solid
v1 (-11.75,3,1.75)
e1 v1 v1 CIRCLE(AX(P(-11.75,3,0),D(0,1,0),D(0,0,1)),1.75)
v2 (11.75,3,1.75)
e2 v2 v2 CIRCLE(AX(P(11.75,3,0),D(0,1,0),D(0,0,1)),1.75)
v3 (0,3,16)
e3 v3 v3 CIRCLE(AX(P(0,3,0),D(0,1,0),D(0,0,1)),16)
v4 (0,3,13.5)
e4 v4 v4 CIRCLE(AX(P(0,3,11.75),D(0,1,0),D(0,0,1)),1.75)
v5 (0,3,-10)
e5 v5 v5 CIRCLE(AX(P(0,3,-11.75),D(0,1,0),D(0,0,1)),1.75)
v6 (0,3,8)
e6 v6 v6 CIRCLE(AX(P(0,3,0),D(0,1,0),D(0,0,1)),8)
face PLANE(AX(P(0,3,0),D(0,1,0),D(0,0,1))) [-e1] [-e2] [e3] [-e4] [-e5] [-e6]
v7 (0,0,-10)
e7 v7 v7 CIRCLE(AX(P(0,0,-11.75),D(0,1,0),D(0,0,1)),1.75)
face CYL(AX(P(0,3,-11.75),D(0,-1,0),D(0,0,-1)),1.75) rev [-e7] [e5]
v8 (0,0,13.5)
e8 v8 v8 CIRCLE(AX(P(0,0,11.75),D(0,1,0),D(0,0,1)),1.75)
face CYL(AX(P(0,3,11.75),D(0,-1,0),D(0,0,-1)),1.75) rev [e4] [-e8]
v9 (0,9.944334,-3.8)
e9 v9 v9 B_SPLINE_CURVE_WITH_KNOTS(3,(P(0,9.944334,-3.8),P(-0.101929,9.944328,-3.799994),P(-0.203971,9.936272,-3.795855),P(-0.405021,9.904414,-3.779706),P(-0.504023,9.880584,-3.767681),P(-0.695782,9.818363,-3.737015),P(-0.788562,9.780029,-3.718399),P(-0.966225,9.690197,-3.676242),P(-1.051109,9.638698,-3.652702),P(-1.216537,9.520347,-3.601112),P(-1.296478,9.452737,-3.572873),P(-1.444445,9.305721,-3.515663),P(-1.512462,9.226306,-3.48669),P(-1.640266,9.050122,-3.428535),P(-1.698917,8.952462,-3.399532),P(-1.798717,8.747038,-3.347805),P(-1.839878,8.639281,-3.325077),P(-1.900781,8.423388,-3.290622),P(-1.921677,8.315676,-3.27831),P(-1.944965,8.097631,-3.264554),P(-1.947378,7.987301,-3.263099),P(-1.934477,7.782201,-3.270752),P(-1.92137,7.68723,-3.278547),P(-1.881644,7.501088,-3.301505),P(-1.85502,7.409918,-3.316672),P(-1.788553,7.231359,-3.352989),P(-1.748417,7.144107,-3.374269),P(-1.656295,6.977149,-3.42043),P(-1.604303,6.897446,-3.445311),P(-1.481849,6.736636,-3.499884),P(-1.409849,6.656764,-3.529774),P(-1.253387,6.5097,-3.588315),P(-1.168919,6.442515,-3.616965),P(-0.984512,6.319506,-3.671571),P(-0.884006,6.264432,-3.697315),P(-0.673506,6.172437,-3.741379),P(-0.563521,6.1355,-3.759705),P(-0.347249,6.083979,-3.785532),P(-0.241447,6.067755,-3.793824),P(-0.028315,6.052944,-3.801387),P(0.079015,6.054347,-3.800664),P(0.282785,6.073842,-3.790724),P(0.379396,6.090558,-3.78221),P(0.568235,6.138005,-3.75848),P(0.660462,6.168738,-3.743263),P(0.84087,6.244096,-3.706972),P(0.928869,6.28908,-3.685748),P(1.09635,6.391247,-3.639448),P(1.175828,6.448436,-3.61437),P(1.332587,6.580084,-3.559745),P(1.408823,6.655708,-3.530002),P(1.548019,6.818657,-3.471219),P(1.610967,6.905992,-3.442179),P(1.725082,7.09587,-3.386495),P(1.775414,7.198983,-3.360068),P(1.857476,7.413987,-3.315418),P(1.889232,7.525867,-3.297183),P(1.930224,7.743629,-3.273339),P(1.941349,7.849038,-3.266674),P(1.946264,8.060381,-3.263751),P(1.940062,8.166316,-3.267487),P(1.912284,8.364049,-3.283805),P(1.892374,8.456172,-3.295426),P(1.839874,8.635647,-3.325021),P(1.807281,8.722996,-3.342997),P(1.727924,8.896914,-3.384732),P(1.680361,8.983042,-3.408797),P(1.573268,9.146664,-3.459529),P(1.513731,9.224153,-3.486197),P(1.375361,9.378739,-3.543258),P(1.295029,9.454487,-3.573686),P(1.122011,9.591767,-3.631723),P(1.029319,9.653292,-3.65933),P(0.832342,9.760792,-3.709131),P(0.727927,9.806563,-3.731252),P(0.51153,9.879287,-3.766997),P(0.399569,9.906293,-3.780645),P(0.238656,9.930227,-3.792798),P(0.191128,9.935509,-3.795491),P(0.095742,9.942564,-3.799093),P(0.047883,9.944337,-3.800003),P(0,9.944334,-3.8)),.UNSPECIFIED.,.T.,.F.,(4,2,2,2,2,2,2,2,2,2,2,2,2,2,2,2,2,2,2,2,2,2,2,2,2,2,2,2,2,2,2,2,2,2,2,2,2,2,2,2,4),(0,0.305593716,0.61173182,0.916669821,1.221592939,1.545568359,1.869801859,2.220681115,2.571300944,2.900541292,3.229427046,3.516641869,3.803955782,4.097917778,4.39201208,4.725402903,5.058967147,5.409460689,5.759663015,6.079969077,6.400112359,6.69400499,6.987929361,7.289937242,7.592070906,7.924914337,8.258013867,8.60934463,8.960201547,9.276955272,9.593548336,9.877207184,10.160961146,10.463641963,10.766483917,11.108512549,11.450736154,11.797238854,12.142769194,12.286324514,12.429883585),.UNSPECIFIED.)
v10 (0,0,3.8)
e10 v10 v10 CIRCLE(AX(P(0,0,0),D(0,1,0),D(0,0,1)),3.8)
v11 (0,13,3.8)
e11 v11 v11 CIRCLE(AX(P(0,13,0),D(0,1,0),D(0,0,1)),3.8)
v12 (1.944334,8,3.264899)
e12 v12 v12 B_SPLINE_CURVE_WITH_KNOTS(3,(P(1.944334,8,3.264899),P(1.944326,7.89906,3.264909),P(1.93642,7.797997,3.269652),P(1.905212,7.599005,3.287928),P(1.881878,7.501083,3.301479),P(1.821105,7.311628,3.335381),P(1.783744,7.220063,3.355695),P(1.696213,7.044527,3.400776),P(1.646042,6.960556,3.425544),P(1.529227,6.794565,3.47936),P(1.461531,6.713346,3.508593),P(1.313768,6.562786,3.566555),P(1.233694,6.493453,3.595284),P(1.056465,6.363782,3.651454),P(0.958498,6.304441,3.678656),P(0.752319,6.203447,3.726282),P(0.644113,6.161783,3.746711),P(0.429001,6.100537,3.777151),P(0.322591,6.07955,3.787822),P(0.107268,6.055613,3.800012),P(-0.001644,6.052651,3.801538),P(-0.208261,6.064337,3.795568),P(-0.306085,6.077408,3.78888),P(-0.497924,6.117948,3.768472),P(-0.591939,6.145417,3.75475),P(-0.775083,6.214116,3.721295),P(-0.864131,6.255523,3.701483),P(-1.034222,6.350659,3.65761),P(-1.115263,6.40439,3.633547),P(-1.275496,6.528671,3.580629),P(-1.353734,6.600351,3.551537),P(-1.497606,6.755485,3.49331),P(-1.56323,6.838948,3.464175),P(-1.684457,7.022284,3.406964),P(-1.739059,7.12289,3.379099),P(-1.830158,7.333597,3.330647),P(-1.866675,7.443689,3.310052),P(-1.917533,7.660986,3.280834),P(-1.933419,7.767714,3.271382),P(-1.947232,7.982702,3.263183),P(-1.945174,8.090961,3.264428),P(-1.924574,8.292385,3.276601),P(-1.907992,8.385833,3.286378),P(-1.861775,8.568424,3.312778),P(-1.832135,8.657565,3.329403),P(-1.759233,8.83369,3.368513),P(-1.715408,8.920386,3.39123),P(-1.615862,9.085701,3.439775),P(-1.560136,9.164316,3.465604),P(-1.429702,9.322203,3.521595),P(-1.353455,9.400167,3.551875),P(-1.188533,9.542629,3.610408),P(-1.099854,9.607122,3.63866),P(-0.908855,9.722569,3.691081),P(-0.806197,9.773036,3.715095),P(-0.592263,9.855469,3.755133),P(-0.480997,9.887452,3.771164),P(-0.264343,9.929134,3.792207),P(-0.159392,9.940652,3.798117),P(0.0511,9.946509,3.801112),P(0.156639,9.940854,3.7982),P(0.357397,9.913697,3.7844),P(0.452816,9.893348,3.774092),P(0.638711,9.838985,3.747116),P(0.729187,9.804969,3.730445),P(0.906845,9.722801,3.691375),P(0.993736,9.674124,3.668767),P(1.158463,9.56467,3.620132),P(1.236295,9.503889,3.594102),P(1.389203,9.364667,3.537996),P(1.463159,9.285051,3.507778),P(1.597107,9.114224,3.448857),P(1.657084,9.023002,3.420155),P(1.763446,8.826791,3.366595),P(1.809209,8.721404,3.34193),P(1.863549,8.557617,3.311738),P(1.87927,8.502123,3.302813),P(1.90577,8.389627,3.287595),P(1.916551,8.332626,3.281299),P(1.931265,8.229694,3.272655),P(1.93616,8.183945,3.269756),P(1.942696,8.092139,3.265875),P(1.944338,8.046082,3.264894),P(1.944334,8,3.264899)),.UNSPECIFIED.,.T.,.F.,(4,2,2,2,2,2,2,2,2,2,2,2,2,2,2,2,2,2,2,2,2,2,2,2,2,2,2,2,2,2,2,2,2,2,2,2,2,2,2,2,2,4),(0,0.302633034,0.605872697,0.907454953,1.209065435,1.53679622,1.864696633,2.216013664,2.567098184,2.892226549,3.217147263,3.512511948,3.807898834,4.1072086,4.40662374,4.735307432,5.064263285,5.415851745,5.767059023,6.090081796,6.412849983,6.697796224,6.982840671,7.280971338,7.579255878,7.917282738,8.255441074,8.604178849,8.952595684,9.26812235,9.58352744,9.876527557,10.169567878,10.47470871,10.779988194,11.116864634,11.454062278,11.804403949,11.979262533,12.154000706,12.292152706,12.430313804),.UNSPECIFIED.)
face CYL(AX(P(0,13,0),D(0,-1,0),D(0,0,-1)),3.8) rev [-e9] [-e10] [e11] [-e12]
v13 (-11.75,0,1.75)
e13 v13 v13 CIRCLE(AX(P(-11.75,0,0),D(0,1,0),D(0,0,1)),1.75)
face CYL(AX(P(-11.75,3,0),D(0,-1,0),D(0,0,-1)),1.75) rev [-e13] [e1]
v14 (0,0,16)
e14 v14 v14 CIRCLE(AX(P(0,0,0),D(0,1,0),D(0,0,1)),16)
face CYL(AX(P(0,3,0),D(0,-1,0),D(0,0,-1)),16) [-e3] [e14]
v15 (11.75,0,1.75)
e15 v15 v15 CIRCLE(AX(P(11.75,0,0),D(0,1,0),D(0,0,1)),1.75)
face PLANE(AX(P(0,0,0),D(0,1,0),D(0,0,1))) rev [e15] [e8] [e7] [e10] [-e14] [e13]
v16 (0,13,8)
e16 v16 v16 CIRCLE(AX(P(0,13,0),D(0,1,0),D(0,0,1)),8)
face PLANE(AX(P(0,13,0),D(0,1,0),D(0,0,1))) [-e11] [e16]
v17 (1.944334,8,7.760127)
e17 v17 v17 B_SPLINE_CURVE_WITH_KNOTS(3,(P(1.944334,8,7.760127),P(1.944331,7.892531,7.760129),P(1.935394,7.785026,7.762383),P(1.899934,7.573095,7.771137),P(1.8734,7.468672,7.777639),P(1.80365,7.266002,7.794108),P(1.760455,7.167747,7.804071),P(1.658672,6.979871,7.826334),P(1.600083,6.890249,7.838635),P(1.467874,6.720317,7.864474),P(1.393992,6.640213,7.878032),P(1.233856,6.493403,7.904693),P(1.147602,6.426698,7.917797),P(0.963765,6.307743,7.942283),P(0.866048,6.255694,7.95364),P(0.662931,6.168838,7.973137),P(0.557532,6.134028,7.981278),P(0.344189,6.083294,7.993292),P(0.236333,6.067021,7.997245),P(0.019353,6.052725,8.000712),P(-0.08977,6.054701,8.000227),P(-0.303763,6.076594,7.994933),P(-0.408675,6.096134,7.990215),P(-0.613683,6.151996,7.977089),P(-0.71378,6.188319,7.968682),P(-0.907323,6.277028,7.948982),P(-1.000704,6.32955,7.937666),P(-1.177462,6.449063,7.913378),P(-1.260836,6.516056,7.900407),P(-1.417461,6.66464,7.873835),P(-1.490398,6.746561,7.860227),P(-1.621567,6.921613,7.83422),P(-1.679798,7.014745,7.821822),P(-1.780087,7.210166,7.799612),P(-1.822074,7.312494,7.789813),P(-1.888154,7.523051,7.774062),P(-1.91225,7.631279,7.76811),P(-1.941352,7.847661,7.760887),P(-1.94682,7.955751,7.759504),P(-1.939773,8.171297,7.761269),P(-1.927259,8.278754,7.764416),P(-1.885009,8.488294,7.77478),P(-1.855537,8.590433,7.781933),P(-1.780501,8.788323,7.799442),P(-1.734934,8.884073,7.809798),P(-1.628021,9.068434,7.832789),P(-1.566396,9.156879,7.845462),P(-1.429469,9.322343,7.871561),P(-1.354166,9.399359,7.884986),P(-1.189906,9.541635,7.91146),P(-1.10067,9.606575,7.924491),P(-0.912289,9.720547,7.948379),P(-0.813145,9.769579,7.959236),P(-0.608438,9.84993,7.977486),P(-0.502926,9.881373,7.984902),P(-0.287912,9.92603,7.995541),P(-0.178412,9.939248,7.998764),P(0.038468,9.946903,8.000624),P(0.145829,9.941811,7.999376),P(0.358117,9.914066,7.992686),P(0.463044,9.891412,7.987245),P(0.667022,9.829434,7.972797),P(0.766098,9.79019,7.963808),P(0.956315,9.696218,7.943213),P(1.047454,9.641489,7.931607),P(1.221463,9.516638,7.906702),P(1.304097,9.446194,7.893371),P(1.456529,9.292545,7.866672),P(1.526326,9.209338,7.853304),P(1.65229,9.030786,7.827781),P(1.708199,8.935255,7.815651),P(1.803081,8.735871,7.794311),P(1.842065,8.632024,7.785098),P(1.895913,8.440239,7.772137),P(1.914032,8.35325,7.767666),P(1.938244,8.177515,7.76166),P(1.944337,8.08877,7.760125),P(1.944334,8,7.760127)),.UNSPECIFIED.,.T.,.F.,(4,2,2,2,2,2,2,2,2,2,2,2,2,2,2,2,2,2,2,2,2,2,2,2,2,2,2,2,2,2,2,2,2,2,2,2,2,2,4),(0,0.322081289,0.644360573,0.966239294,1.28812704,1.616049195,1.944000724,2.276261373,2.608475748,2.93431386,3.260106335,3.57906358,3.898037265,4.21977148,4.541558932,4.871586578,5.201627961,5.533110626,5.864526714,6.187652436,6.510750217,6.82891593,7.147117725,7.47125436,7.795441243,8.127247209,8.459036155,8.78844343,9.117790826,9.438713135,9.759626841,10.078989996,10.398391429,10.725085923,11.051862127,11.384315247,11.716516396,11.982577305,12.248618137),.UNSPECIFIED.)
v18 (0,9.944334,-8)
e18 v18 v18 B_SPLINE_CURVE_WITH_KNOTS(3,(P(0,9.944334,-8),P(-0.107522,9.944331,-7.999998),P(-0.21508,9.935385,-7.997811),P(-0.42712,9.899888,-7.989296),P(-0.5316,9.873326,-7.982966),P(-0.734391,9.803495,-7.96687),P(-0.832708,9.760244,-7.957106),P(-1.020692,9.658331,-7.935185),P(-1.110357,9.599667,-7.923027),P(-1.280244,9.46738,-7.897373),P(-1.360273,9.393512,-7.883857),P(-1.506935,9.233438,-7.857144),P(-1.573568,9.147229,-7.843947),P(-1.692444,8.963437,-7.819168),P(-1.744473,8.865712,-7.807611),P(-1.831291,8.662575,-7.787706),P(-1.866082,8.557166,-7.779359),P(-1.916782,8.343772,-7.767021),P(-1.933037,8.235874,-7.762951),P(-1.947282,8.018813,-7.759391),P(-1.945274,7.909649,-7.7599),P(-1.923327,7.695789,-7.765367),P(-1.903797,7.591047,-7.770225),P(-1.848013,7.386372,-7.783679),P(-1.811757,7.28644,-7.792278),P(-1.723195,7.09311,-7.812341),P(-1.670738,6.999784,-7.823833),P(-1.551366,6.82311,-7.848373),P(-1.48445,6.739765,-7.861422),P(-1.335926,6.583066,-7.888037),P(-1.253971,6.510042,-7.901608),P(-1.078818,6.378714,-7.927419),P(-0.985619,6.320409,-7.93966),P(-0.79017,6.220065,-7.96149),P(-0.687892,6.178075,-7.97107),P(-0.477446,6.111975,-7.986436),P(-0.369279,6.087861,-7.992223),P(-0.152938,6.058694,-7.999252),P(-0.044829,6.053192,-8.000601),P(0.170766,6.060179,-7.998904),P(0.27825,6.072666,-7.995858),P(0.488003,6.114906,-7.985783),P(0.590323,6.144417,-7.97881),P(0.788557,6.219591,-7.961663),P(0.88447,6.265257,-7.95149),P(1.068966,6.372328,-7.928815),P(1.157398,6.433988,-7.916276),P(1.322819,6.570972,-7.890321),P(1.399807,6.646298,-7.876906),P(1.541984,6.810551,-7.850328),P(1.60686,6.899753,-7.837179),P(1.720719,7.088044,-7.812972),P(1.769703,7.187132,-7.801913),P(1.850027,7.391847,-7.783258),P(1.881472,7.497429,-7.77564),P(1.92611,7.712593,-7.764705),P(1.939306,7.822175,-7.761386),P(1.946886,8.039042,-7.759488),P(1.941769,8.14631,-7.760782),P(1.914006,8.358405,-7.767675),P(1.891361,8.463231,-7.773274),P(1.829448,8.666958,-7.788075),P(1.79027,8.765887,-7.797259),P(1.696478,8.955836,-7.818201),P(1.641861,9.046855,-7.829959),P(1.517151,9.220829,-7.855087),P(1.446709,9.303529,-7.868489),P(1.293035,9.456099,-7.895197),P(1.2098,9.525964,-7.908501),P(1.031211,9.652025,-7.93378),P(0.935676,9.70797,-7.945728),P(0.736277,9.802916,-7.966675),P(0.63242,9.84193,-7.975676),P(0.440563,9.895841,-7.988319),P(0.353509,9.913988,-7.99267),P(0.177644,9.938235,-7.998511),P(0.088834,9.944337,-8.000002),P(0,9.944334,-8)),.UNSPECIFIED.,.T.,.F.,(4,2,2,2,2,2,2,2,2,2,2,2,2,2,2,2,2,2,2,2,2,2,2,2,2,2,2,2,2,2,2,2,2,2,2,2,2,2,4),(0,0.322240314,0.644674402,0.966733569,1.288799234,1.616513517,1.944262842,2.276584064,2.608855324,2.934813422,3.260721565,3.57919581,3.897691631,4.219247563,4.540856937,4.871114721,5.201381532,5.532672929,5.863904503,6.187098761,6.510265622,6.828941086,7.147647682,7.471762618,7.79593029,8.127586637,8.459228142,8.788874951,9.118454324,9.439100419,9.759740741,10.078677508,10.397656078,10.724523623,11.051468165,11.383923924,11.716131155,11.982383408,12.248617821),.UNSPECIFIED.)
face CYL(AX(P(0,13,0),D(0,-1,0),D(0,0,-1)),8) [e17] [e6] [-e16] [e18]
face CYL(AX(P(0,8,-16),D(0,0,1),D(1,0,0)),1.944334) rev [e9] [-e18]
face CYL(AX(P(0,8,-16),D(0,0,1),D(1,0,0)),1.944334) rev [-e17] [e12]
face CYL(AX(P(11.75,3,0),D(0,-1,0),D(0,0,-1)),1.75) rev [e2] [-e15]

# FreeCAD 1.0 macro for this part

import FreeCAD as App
import Part
import Sketcher

V = App.Vector
Q = App.Units.Quantity

doc = App.newDocument("Part")
body = doc.addObject("PartDesign::Body", "Body")

sketch1 = body.newObject("Sketcher::SketchObject", "Sketch")
sketch1.AttachmentSupport = (doc.getObject("XZ_Plane"), [""])
sketch1.MapMode = "FlatFace"
sketch1.addGeometry(Part.Circle(V(0, 0, 0), V(0, 0, 1), 16), False)
sketch1.addGeometry(Part.Circle(V(0, 11.8, 0), V(0, 0, 1), 1.8), False)
sketch1.addGeometry(Part.Circle(V(-11.8, 0, 0), V(0, 0, 1), 1.8), False)
sketch1.addGeometry(Part.Circle(V(0, 0, 0), V(0, 0, 1), 8), False)
sketch1.addGeometry(Part.Circle(V(11.8, 0, 0), V(0, 0, 1), 1.8), False)
sketch1.addGeometry(Part.Circle(V(0, -11.8, 0), V(0, 0, 1), 1.8), False)
sketch1.addConstraint(Sketcher.Constraint("Coincident", 0, 3, -1, 1))
sketch1.addConstraint(Sketcher.Constraint("Coincident", 3, 3, -1, 1))
sketch1.addConstraint(Sketcher.Constraint("Equal", 1, 2))
sketch1.addConstraint(Sketcher.Constraint("Equal", 2, 4))
sketch1.addConstraint(Sketcher.Constraint("Equal", 4, 5))
sketch1.addConstraint(Sketcher.Constraint("Symmetric", 2, 3, 4, 3, -1, 1))
sketch1.addConstraint(Sketcher.Constraint("Symmetric", 1, 3, 5, 3, -1, 1))
sketch1.addConstraint(Sketcher.Constraint("PointOnObject", 1, 3, -2))
sketch1.addConstraint(Sketcher.Constraint("PointOnObject", 2, 3, -1))
sketch1.addConstraint(Sketcher.Constraint("Diameter", 0, Q("32 mm")))
sketch1.addConstraint(Sketcher.Constraint("Diameter", 3, Q("16 mm")))
sketch1.addConstraint(Sketcher.Constraint("Diameter", 1, Q("3.5 mm")))
sketch1.addConstraint(Sketcher.Constraint("DistanceX", 2, 3, 4, 3, Q("23.5 mm")))
sketch1.addConstraint(Sketcher.Constraint("DistanceY", 5, 3, 1, 3, Q("23.5 mm")))
pad1 = body.newObject("PartDesign::Pad", "Pad")
pad1.Profile = sketch1
pad1.Length = 3
pad1.Reversed = True

sketch2 = body.newObject("Sketcher::SketchObject", "Sketch001")
sketch2.AttachmentSupport = (doc.getObject("XZ_Plane"), [""])
sketch2.MapMode = "FlatFace"
sketch2.addGeometry(Part.Circle(V(0, 0, 0), V(0, 0, 1), 8), False)
sketch2.addGeometry(Part.Circle(V(0, 0, 0), V(0, 0, 1), 3.8), False)
sketch2.addConstraint(Sketcher.Constraint("Coincident", 0, 3, -1, 1))
sketch2.addConstraint(Sketcher.Constraint("Coincident", 1, 3, -1, 1))
sketch2.addConstraint(Sketcher.Constraint("Diameter", 0, Q("16 mm")))
sketch2.addConstraint(Sketcher.Constraint("Diameter", 1, Q("7.6 mm")))
pad2 = body.newObject("PartDesign::Pad", "Pad001")
pad2.Profile = sketch2
pad2.Length = 13
pad2.Reversed = True

sketch3 = body.newObject("Sketcher::SketchObject", "Sketch002")
sketch3.AttachmentSupport = (doc.getObject("XY_Plane"), [""])
sketch3.MapMode = "FlatFace"
sketch3.addGeometry(Part.Circle(V(0, 8, 0), V(0, 0, 1), 1.9), False)
sketch3.addConstraint(Sketcher.Constraint("PointOnObject", 0, 3, -2))
sketch3.addConstraint(Sketcher.Constraint("DistanceY", -1, 1, 0, 3, Q("8 mm")))
sketch3.addConstraint(Sketcher.Constraint("Diameter", 0, Q("3.888669 mm")))
pocket1 = body.newObject("PartDesign::Pocket", "Pocket")
pocket1.Profile = sketch3
pocket1.Type = "ThroughAll"
pocket1.Midplane = True

doc.recompute()
